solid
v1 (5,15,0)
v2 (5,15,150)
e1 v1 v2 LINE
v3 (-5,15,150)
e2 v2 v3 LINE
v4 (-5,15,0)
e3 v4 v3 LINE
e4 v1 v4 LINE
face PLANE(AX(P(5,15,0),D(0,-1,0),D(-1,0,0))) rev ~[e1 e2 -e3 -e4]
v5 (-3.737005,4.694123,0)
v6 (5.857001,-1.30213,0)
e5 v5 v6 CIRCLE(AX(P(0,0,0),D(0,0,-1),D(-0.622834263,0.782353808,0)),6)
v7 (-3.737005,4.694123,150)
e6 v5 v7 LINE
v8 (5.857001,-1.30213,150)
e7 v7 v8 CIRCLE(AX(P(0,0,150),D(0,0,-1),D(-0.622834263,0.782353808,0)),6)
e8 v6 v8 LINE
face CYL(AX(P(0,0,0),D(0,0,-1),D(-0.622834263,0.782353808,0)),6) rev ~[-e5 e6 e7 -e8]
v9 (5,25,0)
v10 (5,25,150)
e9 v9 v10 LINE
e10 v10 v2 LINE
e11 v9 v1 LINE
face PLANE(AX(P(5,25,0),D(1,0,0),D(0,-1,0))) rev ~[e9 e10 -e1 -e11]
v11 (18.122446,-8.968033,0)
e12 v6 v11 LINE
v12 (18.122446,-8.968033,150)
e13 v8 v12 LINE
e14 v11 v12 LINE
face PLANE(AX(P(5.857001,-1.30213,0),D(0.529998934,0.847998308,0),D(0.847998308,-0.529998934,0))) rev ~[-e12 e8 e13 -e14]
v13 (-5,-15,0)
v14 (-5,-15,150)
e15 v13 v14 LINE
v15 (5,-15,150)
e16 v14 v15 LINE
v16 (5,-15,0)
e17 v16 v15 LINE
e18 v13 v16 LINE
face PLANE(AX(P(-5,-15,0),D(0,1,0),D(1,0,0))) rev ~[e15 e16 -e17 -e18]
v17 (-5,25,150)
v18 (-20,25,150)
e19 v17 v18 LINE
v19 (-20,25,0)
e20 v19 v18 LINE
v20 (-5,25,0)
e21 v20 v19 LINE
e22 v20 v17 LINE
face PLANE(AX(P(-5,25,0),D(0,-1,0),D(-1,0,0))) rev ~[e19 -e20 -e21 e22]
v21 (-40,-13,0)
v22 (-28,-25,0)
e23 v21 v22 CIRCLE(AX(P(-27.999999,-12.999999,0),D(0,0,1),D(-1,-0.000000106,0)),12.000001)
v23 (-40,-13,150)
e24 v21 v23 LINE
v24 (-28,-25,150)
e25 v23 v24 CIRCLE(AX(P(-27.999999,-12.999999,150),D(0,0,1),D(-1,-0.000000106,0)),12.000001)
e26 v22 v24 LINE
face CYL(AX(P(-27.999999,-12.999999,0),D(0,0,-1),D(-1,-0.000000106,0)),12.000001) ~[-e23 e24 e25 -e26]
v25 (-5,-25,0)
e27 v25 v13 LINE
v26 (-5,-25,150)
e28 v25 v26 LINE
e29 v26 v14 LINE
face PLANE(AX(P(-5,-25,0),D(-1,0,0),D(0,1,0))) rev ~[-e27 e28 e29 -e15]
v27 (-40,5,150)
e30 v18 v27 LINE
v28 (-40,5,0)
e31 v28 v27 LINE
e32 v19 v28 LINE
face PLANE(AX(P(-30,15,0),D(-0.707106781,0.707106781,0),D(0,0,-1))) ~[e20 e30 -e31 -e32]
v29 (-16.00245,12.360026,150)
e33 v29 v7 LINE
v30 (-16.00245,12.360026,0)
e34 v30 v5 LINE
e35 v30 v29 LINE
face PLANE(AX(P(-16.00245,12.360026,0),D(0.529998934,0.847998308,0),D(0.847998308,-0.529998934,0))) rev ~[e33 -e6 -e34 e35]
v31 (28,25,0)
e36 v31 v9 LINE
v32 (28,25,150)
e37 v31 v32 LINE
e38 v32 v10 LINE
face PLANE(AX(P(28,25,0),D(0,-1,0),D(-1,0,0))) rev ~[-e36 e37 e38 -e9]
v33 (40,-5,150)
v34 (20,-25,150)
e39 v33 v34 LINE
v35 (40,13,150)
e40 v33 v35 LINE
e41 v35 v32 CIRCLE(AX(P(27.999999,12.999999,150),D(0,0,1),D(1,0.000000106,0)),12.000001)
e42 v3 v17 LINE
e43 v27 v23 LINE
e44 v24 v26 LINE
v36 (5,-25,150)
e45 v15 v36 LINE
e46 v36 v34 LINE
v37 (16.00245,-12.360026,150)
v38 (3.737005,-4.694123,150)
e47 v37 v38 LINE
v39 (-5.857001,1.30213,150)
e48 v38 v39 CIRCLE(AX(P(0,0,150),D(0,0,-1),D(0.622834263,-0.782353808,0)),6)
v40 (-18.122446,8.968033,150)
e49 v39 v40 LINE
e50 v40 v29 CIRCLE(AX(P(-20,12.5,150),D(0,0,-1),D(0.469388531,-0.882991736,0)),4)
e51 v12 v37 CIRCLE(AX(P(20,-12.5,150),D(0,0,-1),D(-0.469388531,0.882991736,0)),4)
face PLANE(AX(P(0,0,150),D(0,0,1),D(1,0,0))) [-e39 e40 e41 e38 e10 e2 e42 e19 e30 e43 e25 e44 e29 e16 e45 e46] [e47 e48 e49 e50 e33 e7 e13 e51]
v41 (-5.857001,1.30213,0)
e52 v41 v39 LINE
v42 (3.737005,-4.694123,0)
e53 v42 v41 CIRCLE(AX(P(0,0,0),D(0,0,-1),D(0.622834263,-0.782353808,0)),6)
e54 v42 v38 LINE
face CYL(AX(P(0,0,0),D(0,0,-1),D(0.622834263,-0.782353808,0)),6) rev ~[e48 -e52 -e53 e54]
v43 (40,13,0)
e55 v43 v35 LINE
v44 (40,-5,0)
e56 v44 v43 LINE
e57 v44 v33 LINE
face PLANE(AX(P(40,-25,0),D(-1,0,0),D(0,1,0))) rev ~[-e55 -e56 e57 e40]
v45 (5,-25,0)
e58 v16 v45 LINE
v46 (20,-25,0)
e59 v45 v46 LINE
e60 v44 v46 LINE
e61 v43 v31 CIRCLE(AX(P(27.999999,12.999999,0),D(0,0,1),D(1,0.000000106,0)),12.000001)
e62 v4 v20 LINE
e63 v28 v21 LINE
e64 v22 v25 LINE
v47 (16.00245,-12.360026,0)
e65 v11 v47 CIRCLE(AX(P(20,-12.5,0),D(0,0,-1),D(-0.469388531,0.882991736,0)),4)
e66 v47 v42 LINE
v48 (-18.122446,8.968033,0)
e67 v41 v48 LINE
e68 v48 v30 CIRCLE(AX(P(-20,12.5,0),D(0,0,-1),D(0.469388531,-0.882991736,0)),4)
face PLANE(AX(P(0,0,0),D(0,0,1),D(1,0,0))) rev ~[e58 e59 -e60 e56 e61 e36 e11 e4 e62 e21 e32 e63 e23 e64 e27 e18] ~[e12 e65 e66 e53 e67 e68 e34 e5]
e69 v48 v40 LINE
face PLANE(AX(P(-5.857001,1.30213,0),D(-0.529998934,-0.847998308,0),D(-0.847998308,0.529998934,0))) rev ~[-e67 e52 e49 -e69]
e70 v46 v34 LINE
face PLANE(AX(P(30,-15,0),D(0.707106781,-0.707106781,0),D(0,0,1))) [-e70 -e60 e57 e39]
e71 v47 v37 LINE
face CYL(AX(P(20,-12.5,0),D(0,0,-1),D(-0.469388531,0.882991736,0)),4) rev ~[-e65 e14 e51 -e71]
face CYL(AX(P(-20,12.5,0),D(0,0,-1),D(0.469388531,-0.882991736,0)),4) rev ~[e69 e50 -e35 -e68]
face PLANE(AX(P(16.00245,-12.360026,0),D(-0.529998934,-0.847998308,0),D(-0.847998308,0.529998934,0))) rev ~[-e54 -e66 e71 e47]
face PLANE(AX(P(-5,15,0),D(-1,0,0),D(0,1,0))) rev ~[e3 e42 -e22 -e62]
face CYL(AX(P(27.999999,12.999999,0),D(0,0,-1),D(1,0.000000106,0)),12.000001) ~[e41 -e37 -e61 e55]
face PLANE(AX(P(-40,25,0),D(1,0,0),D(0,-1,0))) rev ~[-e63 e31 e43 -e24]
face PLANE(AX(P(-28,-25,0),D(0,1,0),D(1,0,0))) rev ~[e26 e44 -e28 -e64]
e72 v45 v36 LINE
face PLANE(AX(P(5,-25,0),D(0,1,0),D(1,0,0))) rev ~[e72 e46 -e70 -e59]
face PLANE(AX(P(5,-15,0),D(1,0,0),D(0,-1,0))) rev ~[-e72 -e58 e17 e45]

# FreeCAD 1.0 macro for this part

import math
import FreeCAD as App
import Part
import Sketcher
from FreeCAD import Vector
Q = App.Units.Quantity


def edges_at(feature, points):
    """Names of the edges that pass closest to the given points."""
    edges = feature.Shape.Edges
    near = lambda p: min(range(len(edges)), key=lambda i: edges[i].distToShape(Part.Vertex(*p))[0])
    return sorted({f"Edge{near(p) + 1}" for p in points})

doc = App.newDocument("Part")
params = doc.addObject("Spreadsheet::Sheet", "Params")
for row, (alias, value) in enumerate([
    ("sketch1_radius", "12.000001 mm"),
    ("sketch1_radius2", "12.000001 mm"),
    ("sketch1_radius3", "4 mm"),
    ("sketch1_radius4", "6 mm"),
    ("sketch1_radius5", "4 mm"),
    ("pad1_length", "150 mm"),
    ("chamfer_size", "20 mm"),
], start=1):
    params.set(f"A{row}", alias)
    params.set(f"B{row}", "=" + value)
    params.setAlias(f"B{row}", alias)

body = doc.addObject("PartDesign::Body", "Body")

# Sketch on XY plane
sketch1 = body.newObject("Sketcher::SketchObject", "Sketch")
sketch1.AttachmentSupport = (doc.getObject("XY_Plane"), [""])
sketch1.MapMode = "FlatFace"
sketch1.addGeometry([
    Part.ArcOfCircle(Part.Circle(Vector(27.999999, 12.999999, 0), Vector(0, 0, 1), 12.000001), math.radians(0.000006), math.radians(89.999994)),  # 0
    Part.LineSegment(Vector(28, 25, 0), Vector(5, 25, 0)),  # 1
    Part.LineSegment(Vector(5, 25, 0), Vector(5, 15, 0)),  # 2
    Part.LineSegment(Vector(5, 15, 0), Vector(-5, 15, 0)),  # 3
    Part.LineSegment(Vector(-5, 15, 0), Vector(-5, 25, 0)),  # 4
    Part.LineSegment(Vector(-5, 25, 0), Vector(-40, 25, 0)),  # 5
    Part.LineSegment(Vector(-40, 25, 0), Vector(-40, -13, 0)),  # 6
    Part.ArcOfCircle(Part.Circle(Vector(-27.999999, -12.999999, 0), Vector(0, 0, 1), 12.000001), math.radians(-179.999994), math.radians(-90.000006)),  # 7
    Part.LineSegment(Vector(-28, -25, 0), Vector(-5, -25, 0)),  # 8
    Part.LineSegment(Vector(-5, -25, 0), Vector(-5, -15, 0)),  # 9
    Part.LineSegment(Vector(-5, -15, 0), Vector(5, -15, 0)),  # 10
    Part.LineSegment(Vector(5, -15, 0), Vector(5, -25, 0)),  # 11
    Part.LineSegment(Vector(5, -25, 0), Vector(40, -25, 0)),  # 12
    Part.LineSegment(Vector(40, -25, 0), Vector(40, 13, 0)),  # 13
    Part.LineSegment(Vector(-5.857001, 1.30213, 0), Vector(-18.122446, 8.968033, 0)),  # 14
    Part.ArcOfCircle(Part.Circle(Vector(-20, 12.5, 0), Vector(0, 0, 1), 4), math.radians(-2.005388), math.radians(297.994612)),  # 15
    Part.LineSegment(Vector(-16.00245, 12.360026, 0), Vector(-3.737005, 4.694123, 0)),  # 16
    Part.ArcOfCircle(Part.Circle(Vector(0, 0, 0), Vector(0, 0, 1), 6), math.radians(-12.534164), math.radians(128.523404)),  # 17
    Part.LineSegment(Vector(5.857001, -1.30213, 0), Vector(18.122446, -8.968033, 0)),  # 18
    Part.ArcOfCircle(Part.Circle(Vector(20, -12.5, 0), Vector(0, 0, 1), 4), math.radians(177.994612), math.radians(477.994612)),  # 19
    Part.LineSegment(Vector(16.00245, -12.360026, 0), Vector(3.737005, -4.694123, 0)),  # 20
    Part.ArcOfCircle(Part.Circle(Vector(0, 0, 0), Vector(0, 0, 1), 6), math.radians(167.465836), math.radians(308.523404)),  # 21
], False)
sketch1.addConstraint([
    Sketcher.Constraint("Coincident", 0, 2, 1, 1),
    Sketcher.Constraint("Coincident", 1, 2, 2, 1),
    Sketcher.Constraint("Coincident", 2, 2, 3, 1),
    Sketcher.Constraint("Coincident", 3, 2, 4, 1),
    Sketcher.Constraint("Coincident", 4, 2, 5, 1),
    Sketcher.Constraint("Coincident", 5, 2, 6, 1),
    Sketcher.Constraint("Coincident", 6, 2, 7, 1),
    Sketcher.Constraint("Coincident", 7, 2, 8, 1),
    Sketcher.Constraint("Coincident", 8, 2, 9, 1),
    Sketcher.Constraint("Coincident", 9, 2, 10, 1),
    Sketcher.Constraint("Coincident", 10, 2, 11, 1),
    Sketcher.Constraint("Coincident", 11, 2, 12, 1),
    Sketcher.Constraint("Coincident", 12, 2, 13, 1),
    Sketcher.Constraint("Coincident", 13, 2, 0, 1),
    Sketcher.Constraint("Coincident", 14, 2, 15, 2),
    Sketcher.Constraint("Coincident", 15, 1, 16, 1),
    Sketcher.Constraint("Coincident", 16, 2, 17, 2),
    Sketcher.Constraint("Coincident", 17, 1, 18, 1),
    Sketcher.Constraint("Coincident", 18, 2, 19, 2),
    Sketcher.Constraint("Coincident", 19, 1, 20, 1),
    Sketcher.Constraint("Coincident", 20, 2, 21, 2),
    Sketcher.Constraint("Coincident", 21, 1, 14, 1),
    Sketcher.Constraint("Horizontal", 1),
    Sketcher.Constraint("Vertical", 2),
    Sketcher.Constraint("Horizontal", 3),
    Sketcher.Constraint("Vertical", 4),
    Sketcher.Constraint("Horizontal", 5),
    Sketcher.Constraint("Vertical", 6),
    Sketcher.Constraint("Horizontal", 8),
    Sketcher.Constraint("Vertical", 9),
    Sketcher.Constraint("Horizontal", 10),
    Sketcher.Constraint("Vertical", 11),
    Sketcher.Constraint("Horizontal", 12),
    Sketcher.Constraint("Vertical", 13),
    Sketcher.Constraint("Coincident", 17, 3, -1, 1),
    Sketcher.Constraint("Coincident", 21, 3, -1, 1),
    Sketcher.Constraint("Radius", 0, Q("12.000001 mm")),
    Sketcher.Constraint("Radius", 7, Q("12.000001 mm")),
    Sketcher.Constraint("Radius", 15, Q("4 mm")),
    Sketcher.Constraint("Radius", 17, Q("6 mm")),
    Sketcher.Constraint("Radius", 19, Q("4 mm")),
    Sketcher.Constraint("Radius", 21, Q("6 mm")),
    Sketcher.Constraint("DistanceX", 1, 2, 1, 1, Q("23 mm")),
    Sketcher.Constraint("DistanceX", 3, 2, 3, 1, Q("10 mm")),
    Sketcher.Constraint("DistanceX", 5, 2, 5, 1, Q("35 mm")),
    Sketcher.Constraint("DistanceX", 8, 1, 8, 2, Q("23 mm")),
    Sketcher.Constraint("DistanceX", 10, 1, 10, 2, Q("10 mm")),
    Sketcher.Constraint("DistanceX", 12, 1, 12, 2, Q("35 mm")),
    Sketcher.Constraint("DistanceY", 2, 2, 2, 1, Q("10 mm")),
    Sketcher.Constraint("DistanceY", 4, 1, 4, 2, Q("10 mm")),
    Sketcher.Constraint("DistanceY", 6, 2, 6, 1, Q("38 mm")),
    Sketcher.Constraint("DistanceY", 9, 1, 9, 2, Q("10 mm")),
    Sketcher.Constraint("DistanceY", 11, 2, 11, 1, Q("10 mm")),
    Sketcher.Constraint("DistanceY", 13, 1, 13, 2, Q("38 mm")),
    Sketcher.Constraint("DistanceX", -1, 1, 0, 3, Q("27.999999 mm")),
    Sketcher.Constraint("DistanceY", -1, 1, 0, 3, Q("12.999999 mm")),
    Sketcher.Constraint("DistanceX", 7, 3, -1, 1, Q("27.999999 mm")),
    Sketcher.Constraint("DistanceY", 7, 3, -1, 1, Q("12.999999 mm")),
    Sketcher.Constraint("DistanceX", 15, 3, -1, 1, Q("20 mm")),
    Sketcher.Constraint("DistanceX", -1, 1, 19, 3, Q("20 mm")),
    Sketcher.Constraint("DistanceY", 19, 3, 15, 3, Q("25 mm")),
    Sketcher.Constraint("DistanceY", -1, 1, 15, 3, Q("12.5 mm")),
    Sketcher.Constraint("DistanceX", -1, 1, 17, 1, Q("5.857001 mm")),
    Sketcher.Constraint("DistanceX", 21, 1, -1, 1, Q("5.857001 mm")),
    Sketcher.Constraint("DistanceX", 15, 1, -1, 1, Q("16.00245 mm")),
    Sketcher.Constraint("DistanceX", -1, 1, 19, 1, Q("16.00245 mm")),
    Sketcher.Constraint("DistanceX", 16, 2, 20, 2, Q("7.47401 mm")),
    Sketcher.Constraint("Distance", 14, Q("14.463997 mm")),
    Sketcher.Constraint("Distance", 16, Q("14.463997 mm")),
    Sketcher.Constraint("Distance", 18, Q("14.463997 mm")),
])
sketch1.setExpression("Constraints[36]", "Params.sketch1_radius")
sketch1.setExpression("Constraints[37]", "Params.sketch1_radius2")
sketch1.setExpression("Constraints[38]", "Params.sketch1_radius3")
sketch1.setExpression("Constraints[39]", "Params.sketch1_radius4")
sketch1.setExpression("Constraints[40]", "Params.sketch1_radius5")
pad1 = body.newObject("PartDesign::Pad", "Pad")
pad1.Profile = sketch1
pad1.setExpression("Length", "Params.pad1_length")
doc.recompute()

chamfer = body.newObject("PartDesign::Chamfer", "Chamfer")
chamfer.Base = (pad1, edges_at(pad1, [(-40, 25, 75), (40, -25, 75)]))
chamfer.setExpression("Size", "Params.chamfer_size")

doc.recompute()
